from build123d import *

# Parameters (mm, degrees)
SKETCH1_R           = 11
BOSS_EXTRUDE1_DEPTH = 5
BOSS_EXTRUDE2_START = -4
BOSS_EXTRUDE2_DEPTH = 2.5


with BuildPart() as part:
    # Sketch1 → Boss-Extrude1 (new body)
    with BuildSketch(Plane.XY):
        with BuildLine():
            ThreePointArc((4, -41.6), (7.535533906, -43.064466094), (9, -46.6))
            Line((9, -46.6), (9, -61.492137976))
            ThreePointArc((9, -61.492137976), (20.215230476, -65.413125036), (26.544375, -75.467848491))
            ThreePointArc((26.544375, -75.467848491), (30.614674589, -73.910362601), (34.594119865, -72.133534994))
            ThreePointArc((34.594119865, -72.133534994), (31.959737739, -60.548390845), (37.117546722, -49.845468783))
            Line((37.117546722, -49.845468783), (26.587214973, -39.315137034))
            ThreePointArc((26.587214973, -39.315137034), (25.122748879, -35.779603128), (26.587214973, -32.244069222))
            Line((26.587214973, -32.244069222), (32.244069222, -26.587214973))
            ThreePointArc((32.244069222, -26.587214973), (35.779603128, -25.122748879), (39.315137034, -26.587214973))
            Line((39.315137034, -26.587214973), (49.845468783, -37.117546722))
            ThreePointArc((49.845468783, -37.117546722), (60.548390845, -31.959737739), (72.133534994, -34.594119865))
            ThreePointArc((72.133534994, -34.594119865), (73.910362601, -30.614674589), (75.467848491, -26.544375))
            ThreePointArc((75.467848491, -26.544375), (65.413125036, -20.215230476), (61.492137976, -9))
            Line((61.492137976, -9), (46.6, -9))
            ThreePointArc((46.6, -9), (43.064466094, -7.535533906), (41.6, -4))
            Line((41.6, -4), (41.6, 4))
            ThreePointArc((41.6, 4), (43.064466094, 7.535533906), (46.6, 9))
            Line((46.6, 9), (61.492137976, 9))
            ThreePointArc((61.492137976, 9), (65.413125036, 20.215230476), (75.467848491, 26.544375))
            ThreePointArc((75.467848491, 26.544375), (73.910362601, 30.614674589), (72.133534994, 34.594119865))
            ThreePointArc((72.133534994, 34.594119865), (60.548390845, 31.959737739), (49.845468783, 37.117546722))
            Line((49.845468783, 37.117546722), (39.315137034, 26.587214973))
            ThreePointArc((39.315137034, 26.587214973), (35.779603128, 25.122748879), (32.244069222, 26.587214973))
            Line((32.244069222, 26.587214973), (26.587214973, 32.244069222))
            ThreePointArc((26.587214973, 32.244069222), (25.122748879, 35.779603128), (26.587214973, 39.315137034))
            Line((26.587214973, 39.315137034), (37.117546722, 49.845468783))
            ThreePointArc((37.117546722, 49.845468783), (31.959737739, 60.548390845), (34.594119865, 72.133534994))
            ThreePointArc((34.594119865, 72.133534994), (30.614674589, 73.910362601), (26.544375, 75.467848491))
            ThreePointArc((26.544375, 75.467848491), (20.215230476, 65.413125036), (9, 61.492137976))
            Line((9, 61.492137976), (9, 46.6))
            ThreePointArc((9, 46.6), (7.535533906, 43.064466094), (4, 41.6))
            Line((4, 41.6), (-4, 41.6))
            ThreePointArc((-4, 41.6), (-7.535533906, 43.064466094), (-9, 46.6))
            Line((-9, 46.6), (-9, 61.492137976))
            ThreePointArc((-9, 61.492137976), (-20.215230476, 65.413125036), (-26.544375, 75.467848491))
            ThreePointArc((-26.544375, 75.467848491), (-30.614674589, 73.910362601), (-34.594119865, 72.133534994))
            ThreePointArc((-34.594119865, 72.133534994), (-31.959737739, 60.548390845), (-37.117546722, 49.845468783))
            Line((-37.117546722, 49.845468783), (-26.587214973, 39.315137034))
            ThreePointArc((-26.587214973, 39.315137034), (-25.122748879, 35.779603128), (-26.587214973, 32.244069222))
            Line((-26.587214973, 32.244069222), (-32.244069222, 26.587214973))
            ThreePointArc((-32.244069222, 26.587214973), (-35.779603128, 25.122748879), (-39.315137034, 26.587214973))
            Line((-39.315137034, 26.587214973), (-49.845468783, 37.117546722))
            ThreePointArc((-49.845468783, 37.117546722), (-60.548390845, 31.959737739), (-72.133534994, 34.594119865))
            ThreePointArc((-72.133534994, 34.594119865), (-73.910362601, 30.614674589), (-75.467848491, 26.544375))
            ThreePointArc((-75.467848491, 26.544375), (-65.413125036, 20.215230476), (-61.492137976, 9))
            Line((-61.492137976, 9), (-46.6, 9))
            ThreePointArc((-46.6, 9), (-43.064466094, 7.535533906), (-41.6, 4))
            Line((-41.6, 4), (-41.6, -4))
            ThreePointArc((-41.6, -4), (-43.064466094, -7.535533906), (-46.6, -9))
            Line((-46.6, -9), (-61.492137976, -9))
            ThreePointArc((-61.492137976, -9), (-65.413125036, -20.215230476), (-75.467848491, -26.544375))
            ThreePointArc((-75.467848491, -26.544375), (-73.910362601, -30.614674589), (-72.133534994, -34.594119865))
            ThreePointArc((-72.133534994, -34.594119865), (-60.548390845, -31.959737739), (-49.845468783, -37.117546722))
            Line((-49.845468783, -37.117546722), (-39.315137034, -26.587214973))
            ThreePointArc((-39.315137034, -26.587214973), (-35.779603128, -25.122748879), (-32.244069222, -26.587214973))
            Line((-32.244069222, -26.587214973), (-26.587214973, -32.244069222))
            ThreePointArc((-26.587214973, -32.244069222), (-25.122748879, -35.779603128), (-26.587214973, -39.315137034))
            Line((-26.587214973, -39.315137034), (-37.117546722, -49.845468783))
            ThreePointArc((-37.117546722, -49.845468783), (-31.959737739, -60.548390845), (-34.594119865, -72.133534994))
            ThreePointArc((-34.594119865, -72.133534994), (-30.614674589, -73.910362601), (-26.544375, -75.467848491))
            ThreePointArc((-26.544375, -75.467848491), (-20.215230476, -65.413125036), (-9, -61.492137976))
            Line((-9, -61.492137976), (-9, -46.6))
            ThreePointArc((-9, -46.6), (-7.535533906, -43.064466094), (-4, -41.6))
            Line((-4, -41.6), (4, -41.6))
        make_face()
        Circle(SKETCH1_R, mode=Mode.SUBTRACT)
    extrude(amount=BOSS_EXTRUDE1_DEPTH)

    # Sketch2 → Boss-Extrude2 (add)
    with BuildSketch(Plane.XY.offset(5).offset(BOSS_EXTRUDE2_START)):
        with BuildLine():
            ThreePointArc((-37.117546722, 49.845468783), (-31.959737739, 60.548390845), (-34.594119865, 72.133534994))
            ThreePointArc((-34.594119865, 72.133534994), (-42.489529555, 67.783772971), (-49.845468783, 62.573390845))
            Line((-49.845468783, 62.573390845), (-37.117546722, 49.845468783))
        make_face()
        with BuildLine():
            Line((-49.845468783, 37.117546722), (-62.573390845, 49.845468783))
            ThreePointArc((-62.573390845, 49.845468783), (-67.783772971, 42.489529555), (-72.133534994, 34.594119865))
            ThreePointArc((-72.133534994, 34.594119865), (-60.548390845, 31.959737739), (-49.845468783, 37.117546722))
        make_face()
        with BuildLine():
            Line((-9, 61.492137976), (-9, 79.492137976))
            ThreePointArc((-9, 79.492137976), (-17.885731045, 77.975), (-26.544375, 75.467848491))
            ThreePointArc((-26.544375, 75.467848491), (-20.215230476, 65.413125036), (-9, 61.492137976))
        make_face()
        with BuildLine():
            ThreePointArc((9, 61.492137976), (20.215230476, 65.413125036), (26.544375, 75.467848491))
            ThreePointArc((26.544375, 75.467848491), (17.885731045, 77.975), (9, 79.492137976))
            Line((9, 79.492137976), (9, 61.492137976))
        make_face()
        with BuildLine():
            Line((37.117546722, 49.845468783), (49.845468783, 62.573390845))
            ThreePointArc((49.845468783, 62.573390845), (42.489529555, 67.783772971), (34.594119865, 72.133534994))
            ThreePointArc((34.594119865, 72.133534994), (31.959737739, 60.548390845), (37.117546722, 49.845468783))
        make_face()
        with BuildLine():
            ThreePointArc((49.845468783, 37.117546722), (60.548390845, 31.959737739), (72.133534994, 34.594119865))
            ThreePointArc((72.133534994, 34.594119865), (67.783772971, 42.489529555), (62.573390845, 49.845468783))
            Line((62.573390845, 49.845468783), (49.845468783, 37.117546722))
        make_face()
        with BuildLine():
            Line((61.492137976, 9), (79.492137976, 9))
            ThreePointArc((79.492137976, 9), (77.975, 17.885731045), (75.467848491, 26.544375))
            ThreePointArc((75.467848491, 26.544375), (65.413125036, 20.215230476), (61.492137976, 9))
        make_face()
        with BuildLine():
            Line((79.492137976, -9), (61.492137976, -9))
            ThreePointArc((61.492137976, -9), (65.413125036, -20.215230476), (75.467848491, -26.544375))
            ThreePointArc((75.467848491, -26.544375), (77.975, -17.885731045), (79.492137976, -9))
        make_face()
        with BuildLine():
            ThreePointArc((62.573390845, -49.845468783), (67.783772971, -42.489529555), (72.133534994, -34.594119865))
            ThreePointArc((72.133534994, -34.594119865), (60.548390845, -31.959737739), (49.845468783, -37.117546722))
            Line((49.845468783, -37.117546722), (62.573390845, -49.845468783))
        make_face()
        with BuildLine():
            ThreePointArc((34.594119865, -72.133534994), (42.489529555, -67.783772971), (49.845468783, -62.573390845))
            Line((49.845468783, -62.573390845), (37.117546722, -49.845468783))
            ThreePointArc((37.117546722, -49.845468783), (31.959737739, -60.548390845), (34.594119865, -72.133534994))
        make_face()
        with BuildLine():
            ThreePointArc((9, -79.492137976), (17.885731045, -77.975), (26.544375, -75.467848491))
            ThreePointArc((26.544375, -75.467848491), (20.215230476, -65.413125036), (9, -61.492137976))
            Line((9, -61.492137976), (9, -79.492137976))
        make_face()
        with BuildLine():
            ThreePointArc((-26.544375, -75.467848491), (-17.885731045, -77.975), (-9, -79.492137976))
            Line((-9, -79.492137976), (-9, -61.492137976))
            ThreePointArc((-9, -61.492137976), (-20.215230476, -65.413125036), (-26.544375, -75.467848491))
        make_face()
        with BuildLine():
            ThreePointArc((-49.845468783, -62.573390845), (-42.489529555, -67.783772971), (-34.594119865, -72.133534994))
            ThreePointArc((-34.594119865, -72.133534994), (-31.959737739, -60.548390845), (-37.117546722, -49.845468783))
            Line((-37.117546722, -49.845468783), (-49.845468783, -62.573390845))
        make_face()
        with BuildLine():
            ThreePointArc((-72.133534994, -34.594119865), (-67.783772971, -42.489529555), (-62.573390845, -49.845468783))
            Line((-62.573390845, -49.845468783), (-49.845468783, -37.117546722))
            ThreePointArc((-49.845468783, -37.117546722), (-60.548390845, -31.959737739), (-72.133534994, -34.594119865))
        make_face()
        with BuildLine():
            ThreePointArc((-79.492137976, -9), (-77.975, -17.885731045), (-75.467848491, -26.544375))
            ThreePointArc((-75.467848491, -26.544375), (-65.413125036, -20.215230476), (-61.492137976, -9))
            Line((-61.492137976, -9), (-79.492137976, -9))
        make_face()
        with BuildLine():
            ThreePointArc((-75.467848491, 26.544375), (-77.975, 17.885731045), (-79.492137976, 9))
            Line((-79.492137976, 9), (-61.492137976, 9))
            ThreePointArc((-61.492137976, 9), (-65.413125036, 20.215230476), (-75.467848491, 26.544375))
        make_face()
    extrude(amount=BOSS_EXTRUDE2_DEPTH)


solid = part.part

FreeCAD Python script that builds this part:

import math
import FreeCAD as App
import Part
import Sketcher

V = App.Vector
Q = App.Units.Quantity

doc = App.newDocument("Part")
body = doc.addObject("PartDesign::Body", "Body")

# Sketch on XY plane
sketch1 = body.newObject("Sketcher::SketchObject", "Sketch")
sketch1.AttachmentSupport = (doc.getObject("XY_Plane"), [""])
sketch1.MapMode = "FlatFace"
sketch1.addGeometry([
    Part.ArcOfCircle(Part.Circle(V(4, -46.6, 0), V(0, 0, 1), 5), math.radians(0), math.radians(90)),  # 0
    Part.LineSegment(V(9, -46.6, 0), V(9, -61.492138, 0)),  # 1
    Part.ArcOfCircle(Part.Circle(V(9, -79.492138, 0), V(0, 0, 1), 18), math.radians(12.9189), math.radians(90)),  # 2
    Part.ArcOfCircle(Part.Circle(V(0, 0, 0), V(0, 0, 1), 80), math.radians(-70.621651), math.radians(-64.378349)),  # 3
    Part.ArcOfCircle(Part.Circle(V(49.845469, -62.573391, 0), V(0, 0, 1), 18), math.radians(135), math.radians(212.0811)),  # 4
    Part.LineSegment(V(37.117547, -49.845469, 0), V(26.587215, -39.315137, 0)),  # 5
    Part.ArcOfCircle(Part.Circle(V(30.122749, -35.779603, 0), V(0, 0, 1), 5), math.radians(135), math.radians(225)),  # 6
    Part.LineSegment(V(26.587215, -32.244069, 0), V(32.244069, -26.587215, 0)),  # 7
    Part.ArcOfCircle(Part.Circle(V(35.779603, -30.122749, 0), V(0, 0, 1), 5), math.radians(45), math.radians(135)),  # 8
    Part.LineSegment(V(39.315137, -26.587215, 0), V(49.845469, -37.117547, 0)),  # 9
    Part.ArcOfCircle(Part.Circle(V(62.573391, -49.845469, 0), V(0, 0, 1), 18), math.radians(57.9189), math.radians(135)),  # 10
    Part.ArcOfCircle(Part.Circle(V(0, 0, 0), V(0, 0, 1), 80), math.radians(-25.621651), math.radians(-19.378349)),  # 11
    Part.ArcOfCircle(Part.Circle(V(79.492138, -9, 0), V(0, 0, 1), 18), math.radians(180), math.radians(257.0811)),  # 12
    Part.LineSegment(V(61.492138, -9, 0), V(46.6, -9, 0)),  # 13
    Part.ArcOfCircle(Part.Circle(V(46.6, -4, 0), V(0, 0, 1), 5), math.radians(180), math.radians(270)),  # 14
    Part.LineSegment(V(41.6, -4, 0), V(41.6, 4, 0)),  # 15
    Part.ArcOfCircle(Part.Circle(V(46.6, 4, 0), V(0, 0, 1), 5), math.radians(90), math.radians(180)),  # 16
    Part.LineSegment(V(46.6, 9, 0), V(61.492138, 9, 0)),  # 17
    Part.ArcOfCircle(Part.Circle(V(79.492138, 9, 0), V(0, 0, 1), 18), math.radians(102.9189), math.radians(180)),  # 18
    Part.ArcOfCircle(Part.Circle(V(0, 0, 0), V(0, 0, 1), 80), math.radians(19.378349), math.radians(25.621651)),  # 19
    Part.ArcOfCircle(Part.Circle(V(62.573391, 49.845469, 0), V(0, 0, 1), 18), math.radians(-135), math.radians(-57.9189)),  # 20
    Part.LineSegment(V(49.845469, 37.117547, 0), V(39.315137, 26.587215, 0)),  # 21
    Part.ArcOfCircle(Part.Circle(V(35.779603, 30.122749, 0), V(0, 0, 1), 5), math.radians(-135), math.radians(-45)),  # 22
    Part.LineSegment(V(32.244069, 26.587215, 0), V(26.587215, 32.244069, 0)),  # 23
    Part.ArcOfCircle(Part.Circle(V(30.122749, 35.779603, 0), V(0, 0, 1), 5), math.radians(135), math.radians(225)),  # 24
    Part.LineSegment(V(26.587215, 39.315137, 0), V(37.117547, 49.845469, 0)),  # 25
    Part.ArcOfCircle(Part.Circle(V(49.845469, 62.573391, 0), V(0, 0, 1), 18), math.radians(147.9189), math.radians(225)),  # 26
    Part.ArcOfCircle(Part.Circle(V(0, 0, 0), V(0, 0, 1), 80), math.radians(64.378349), math.radians(70.621651)),  # 27
    Part.ArcOfCircle(Part.Circle(V(9, 79.492138, 0), V(0, 0, 1), 18), math.radians(-90), math.radians(-12.9189)),  # 28
    Part.LineSegment(V(9, 61.492138, 0), V(9, 46.6, 0)),  # 29
    Part.ArcOfCircle(Part.Circle(V(4, 46.6, 0), V(0, 0, 1), 5), math.radians(-90), math.radians(0)),  # 30
    Part.LineSegment(V(4, 41.6, 0), V(-4, 41.6, 0)),  # 31
    Part.ArcOfCircle(Part.Circle(V(-4, 46.6, 0), V(0, 0, 1), 5), math.radians(180), math.radians(270)),  # 32
    Part.LineSegment(V(-9, 46.6, 0), V(-9, 61.492138, 0)),  # 33
    Part.ArcOfCircle(Part.Circle(V(-9, 79.492138, 0), V(0, 0, 1), 18), math.radians(-167.0811), math.radians(-90)),  # 34
    Part.ArcOfCircle(Part.Circle(V(0, 0, 0), V(0, 0, 1), 80), math.radians(109.378349), math.radians(115.621651)),  # 35
    Part.ArcOfCircle(Part.Circle(V(-49.845469, 62.573391, 0), V(0, 0, 1), 18), math.radians(-45), math.radians(32.0811)),  # 36
    Part.LineSegment(V(-37.117547, 49.845469, 0), V(-26.587215, 39.315137, 0)),  # 37
    Part.ArcOfCircle(Part.Circle(V(-30.122749, 35.779603, 0), V(0, 0, 1), 5), math.radians(-45), math.radians(45)),  # 38
    Part.LineSegment(V(-26.587215, 32.244069, 0), V(-32.244069, 26.587215, 0)),  # 39
    Part.ArcOfCircle(Part.Circle(V(-35.779603, 30.122749, 0), V(0, 0, 1), 5), math.radians(-135), math.radians(-45)),  # 40
    Part.LineSegment(V(-39.315137, 26.587215, 0), V(-49.845469, 37.117547, 0)),  # 41
    Part.ArcOfCircle(Part.Circle(V(-62.573391, 49.845469, 0), V(0, 0, 1), 18), math.radians(-122.0811), math.radians(-45)),  # 42
    Part.ArcOfCircle(Part.Circle(V(0, 0, 0), V(0, 0, 1), 80), math.radians(154.378349), math.radians(160.621651)),  # 43
    Part.ArcOfCircle(Part.Circle(V(-79.492138, 9, 0), V(0, 0, 1), 18), math.radians(0), math.radians(77.0811)),  # 44
    Part.LineSegment(V(-61.492138, 9, 0), V(-46.6, 9, 0)),  # 45
    Part.ArcOfCircle(Part.Circle(V(-46.6, 4, 0), V(0, 0, 1), 5), math.radians(0), math.radians(90)),  # 46
    Part.LineSegment(V(-41.6, 4, 0), V(-41.6, -4, 0)),  # 47
    Part.ArcOfCircle(Part.Circle(V(-46.6, -4, 0), V(0, 0, 1), 5), math.radians(-90), math.radians(0)),  # 48
    Part.LineSegment(V(-46.6, -9, 0), V(-61.492138, -9, 0)),  # 49
    Part.ArcOfCircle(Part.Circle(V(-79.492138, -9, 0), V(0, 0, 1), 18), math.radians(-77.0811), math.radians(0)),  # 50
    Part.ArcOfCircle(Part.Circle(V(0, 0, 0), V(0, 0, 1), 80), math.radians(-160.621651), math.radians(-154.378349)),  # 51
    Part.ArcOfCircle(Part.Circle(V(-62.573391, -49.845469, 0), V(0, 0, 1), 18), math.radians(45), math.radians(122.0811)),  # 52
    Part.LineSegment(V(-49.845469, -37.117547, 0), V(-39.315137, -26.587215, 0)),  # 53
    Part.ArcOfCircle(Part.Circle(V(-35.779603, -30.122749, 0), V(0, 0, 1), 5), math.radians(45), math.radians(135)),  # 54
    Part.LineSegment(V(-32.244069, -26.587215, 0), V(-26.587215, -32.244069, 0)),  # 55
    Part.ArcOfCircle(Part.Circle(V(-30.122749, -35.779603, 0), V(0, 0, 1), 5), math.radians(-45), math.radians(45)),  # 56
    Part.LineSegment(V(-26.587215, -39.315137, 0), V(-37.117547, -49.845469, 0)),  # 57
    Part.ArcOfCircle(Part.Circle(V(-49.845469, -62.573391, 0), V(0, 0, 1), 18), math.radians(-32.0811), math.radians(45)),  # 58
    Part.ArcOfCircle(Part.Circle(V(0, 0, 0), V(0, 0, 1), 80), math.radians(-115.621651), math.radians(-109.378349)),  # 59
    Part.ArcOfCircle(Part.Circle(V(-9, -79.492138, 0), V(0, 0, 1), 18), math.radians(90), math.radians(167.0811)),  # 60
    Part.LineSegment(V(-9, -61.492138, 0), V(-9, -46.6, 0)),  # 61
    Part.ArcOfCircle(Part.Circle(V(-4, -46.6, 0), V(0, 0, 1), 5), math.radians(90), math.radians(180)),  # 62
    Part.LineSegment(V(-4, -41.6, 0), V(4, -41.6, 0)),  # 63
    Part.Circle(V(0, 0, 0), V(0, 0, 1), 11),  # 64
], False)
sketch1.addConstraint([
    Sketcher.Constraint("Tangent", 0, 1, 1, 1),
    Sketcher.Constraint("Coincident", 1, 2, 2, 2),
    Sketcher.Constraint("Coincident", 2, 1, 3, 1),
    Sketcher.Constraint("Coincident", 3, 2, 4, 2),
    Sketcher.Constraint("Coincident", 4, 1, 5, 1),
    Sketcher.Constraint("Tangent", 5, 2, 6, 2),
    Sketcher.Constraint("Tangent", 6, 1, 7, 1),
    Sketcher.Constraint("Tangent", 7, 2, 8, 2),
    Sketcher.Constraint("Tangent", 8, 1, 9, 1),
    Sketcher.Constraint("Coincident", 9, 2, 10, 2),
    Sketcher.Constraint("Coincident", 10, 1, 11, 1),
    Sketcher.Constraint("Coincident", 11, 2, 12, 2),
    Sketcher.Constraint("Coincident", 12, 1, 13, 1),
    Sketcher.Constraint("Tangent", 13, 2, 14, 2),
    Sketcher.Constraint("Tangent", 14, 1, 15, 1),
    Sketcher.Constraint("Tangent", 15, 2, 16, 2),
    Sketcher.Constraint("Tangent", 16, 1, 17, 1),
    Sketcher.Constraint("Coincident", 17, 2, 18, 2),
    Sketcher.Constraint("Coincident", 18, 1, 19, 1),
    Sketcher.Constraint("Coincident", 19, 2, 20, 2),
    Sketcher.Constraint("Coincident", 20, 1, 21, 1),
    Sketcher.Constraint("Tangent", 21, 2, 22, 2),
    Sketcher.Constraint("Tangent", 22, 1, 23, 1),
    Sketcher.Constraint("Tangent", 23, 2, 24, 2),
    Sketcher.Constraint("Tangent", 24, 1, 25, 1),
    Sketcher.Constraint("Coincident", 25, 2, 26, 2),
    Sketcher.Constraint("Coincident", 26, 1, 27, 1),
    Sketcher.Constraint("Coincident", 27, 2, 28, 2),
    Sketcher.Constraint("Coincident", 28, 1, 29, 1),
    Sketcher.Constraint("Tangent", 29, 2, 30, 2),
    Sketcher.Constraint("Tangent", 30, 1, 31, 1),
    Sketcher.Constraint("Tangent", 31, 2, 32, 2),
    Sketcher.Constraint("Tangent", 32, 1, 33, 1),
    Sketcher.Constraint("Coincident", 33, 2, 34, 2),
    Sketcher.Constraint("Coincident", 34, 1, 35, 1),
    Sketcher.Constraint("Coincident", 35, 2, 36, 2),
    Sketcher.Constraint("Coincident", 36, 1, 37, 1),
    Sketcher.Constraint("Tangent", 37, 2, 38, 2),
    Sketcher.Constraint("Tangent", 38, 1, 39, 1),
    Sketcher.Constraint("Tangent", 39, 2, 40, 2),
    Sketcher.Constraint("Tangent", 40, 1, 41, 1),
    Sketcher.Constraint("Coincident", 41, 2, 42, 2),
    Sketcher.Constraint("Coincident", 42, 1, 43, 1),
    Sketcher.Constraint("Coincident", 43, 2, 44, 2),
    Sketcher.Constraint("Coincident", 44, 1, 45, 1),
    Sketcher.Constraint("Tangent", 45, 2, 46, 2),
    Sketcher.Constraint("Tangent", 46, 1, 47, 1),
    Sketcher.Constraint("Tangent", 47, 2, 48, 2),
    Sketcher.Constraint("Tangent", 48, 1, 49, 1),
    Sketcher.Constraint("Coincident", 49, 2, 50, 2),
    Sketcher.Constraint("Coincident", 50, 1, 51, 1),
    Sketcher.Constraint("Coincident", 51, 2, 52, 2),
    Sketcher.Constraint("Coincident", 52, 1, 53, 1),
    Sketcher.Constraint("Tangent", 53, 2, 54, 2),
    Sketcher.Constraint("Tangent", 54, 1, 55, 1),
    Sketcher.Constraint("Tangent", 55, 2, 56, 2),
    Sketcher.Constraint("Tangent", 56, 1, 57, 1),
    Sketcher.Constraint("Coincident", 57, 2, 58, 2),
    Sketcher.Constraint("Coincident", 58, 1, 59, 1),
    Sketcher.Constraint("Coincident", 59, 2, 60, 2),
    Sketcher.Constraint("Coincident", 60, 1, 61, 1),
    Sketcher.Constraint("Tangent", 61, 2, 62, 2),
    Sketcher.Constraint("Tangent", 62, 1, 63, 1),
    Sketcher.Constraint("Tangent", 63, 2, 0, 2),
    Sketcher.Constraint("Vertical", 1),
    Sketcher.Constraint("Horizontal", 13),
    Sketcher.Constraint("Vertical", 15),
    Sketcher.Constraint("Horizontal", 17),
    Sketcher.Constraint("Vertical", 29),
    Sketcher.Constraint("Horizontal", 31),
    Sketcher.Constraint("Vertical", 33),
    Sketcher.Constraint("Horizontal", 45),
    Sketcher.Constraint("Vertical", 47),
    Sketcher.Constraint("Horizontal", 49),
    Sketcher.Constraint("Vertical", 61),
    Sketcher.Constraint("Horizontal", 63),
    Sketcher.Constraint("Coincident", 3, 3, -1, 1),
    Sketcher.Constraint("Coincident", 11, 3, -1, 1),
    Sketcher.Constraint("Coincident", 19, 3, -1, 1),
    Sketcher.Constraint("Coincident", 27, 3, -1, 1),
    Sketcher.Constraint("Coincident", 35, 3, -1, 1),
    Sketcher.Constraint("Coincident", 43, 3, -1, 1),
    Sketcher.Constraint("Coincident", 51, 3, -1, 1),
    Sketcher.Constraint("Coincident", 59, 3, -1, 1),
    Sketcher.Constraint("Coincident", 64, 3, -1, 1),
    Sketcher.Constraint("Equal", 2, 4),
    Sketcher.Constraint("Equal", 0, 6),
    Sketcher.Constraint("Equal", 6, 8),
    Sketcher.Constraint("Equal", 4, 10),
    Sketcher.Constraint("Equal", 3, 11),
    Sketcher.Constraint("Equal", 10, 12),
    Sketcher.Constraint("Equal", 8, 14),
    Sketcher.Constraint("Equal", 14, 16),
    Sketcher.Constraint("Equal", 12, 18),
    Sketcher.Constraint("Equal", 11, 19),
    Sketcher.Constraint("Equal", 18, 20),
    Sketcher.Constraint("Equal", 16, 22),
    Sketcher.Constraint("Equal", 22, 24),
    Sketcher.Constraint("Equal", 20, 26),
    Sketcher.Constraint("Equal", 19, 27),
    Sketcher.Constraint("Equal", 26, 28),
    Sketcher.Constraint("Equal", 24, 30),
    Sketcher.Constraint("Equal", 30, 32),
    Sketcher.Constraint("Equal", 28, 34),
    Sketcher.Constraint("Equal", 27, 35),
    Sketcher.Constraint("Equal", 34, 36),
    Sketcher.Constraint("Equal", 32, 38),
    Sketcher.Constraint("Equal", 38, 40),
    Sketcher.Constraint("Equal", 36, 42),
    Sketcher.Constraint("Equal", 35, 43),
    Sketcher.Constraint("Equal", 42, 44),
    Sketcher.Constraint("Equal", 40, 46),
    Sketcher.Constraint("Equal", 46, 48),
    Sketcher.Constraint("Equal", 44, 50),
    Sketcher.Constraint("Equal", 43, 51),
    Sketcher.Constraint("Equal", 50, 52),
    Sketcher.Constraint("Equal", 48, 54),
    Sketcher.Constraint("Equal", 54, 56),
    Sketcher.Constraint("Equal", 52, 58),
    Sketcher.Constraint("Equal", 51, 59),
    Sketcher.Constraint("Equal", 58, 60),
    Sketcher.Constraint("Equal", 56, 62),
    Sketcher.Constraint("Symmetric", 0, 3, 32, 3, -1, 1),
    Sketcher.Constraint("Symmetric", 2, 3, 34, 3, -1, 1),
    Sketcher.Constraint("Symmetric", 4, 3, 36, 3, -1, 1),
    Sketcher.Constraint("Symmetric", 6, 3, 38, 3, -1, 1),
    Sketcher.Constraint("Symmetric", 8, 3, 40, 3, -1, 1),
    Sketcher.Constraint("Symmetric", 10, 3, 42, 3, -1, 1),
    Sketcher.Constraint("Symmetric", 12, 3, 44, 3, -1, 1),
    Sketcher.Constraint("Symmetric", 14, 3, 46, 3, -1, 1),
    Sketcher.Constraint("Symmetric", 18, 3, 50, 3, -1, 1),
    Sketcher.Constraint("Symmetric", 20, 3, 52, 3, -1, 1),
    Sketcher.Constraint("Symmetric", 22, 3, 54, 3, -1, 1),
    Sketcher.Constraint("Symmetric", 24, 3, 56, 3, -1, 1),
    Sketcher.Constraint("Symmetric", 26, 3, 58, 3, -1, 1),
    Sketcher.Constraint("Symmetric", 28, 3, 60, 3, -1, 1),
    Sketcher.Constraint("Symmetric", 28, 3, 34, 3, -2),
    Sketcher.Constraint("Symmetric", 26, 3, 36, 3, -2),
    Sketcher.Constraint("Symmetric", 24, 3, 38, 3, -2),
    Sketcher.Constraint("Symmetric", 22, 3, 40, 3, -2),
    Sketcher.Constraint("Symmetric", 20, 3, 42, 3, -2),
    Sketcher.Constraint("Symmetric", 18, 3, 44, 3, -2),
    Sketcher.Constraint("Perpendicular", 5, 7),
    Sketcher.Constraint("Perpendicular", 7, 9),
    Sketcher.Constraint("Perpendicular", 9, 21),
    Sketcher.Constraint("Perpendicular", 21, 23),
    Sketcher.Constraint("Perpendicular", 23, 25),
    Sketcher.Constraint("Perpendicular", 25, 37),
    Sketcher.Constraint("Perpendicular", 39, 41),
    Sketcher.Constraint("Perpendicular", 41, 53),
    Sketcher.Constraint("Perpendicular", 55, 57),
    Sketcher.Constraint("Horizontal", 16, 3, 46, 3),
    Sketcher.Constraint("Horizontal", 14, 3, 48, 3),
    Sketcher.Constraint("Horizontal", 52, 3, 4, 1),
    Sketcher.Constraint("Horizontal", 50, 3, 12, 1),
    Sketcher.Constraint("Vertical", 0, 3, 30, 3),
    Sketcher.Constraint("Vertical", 32, 3, 62, 3),
    Sketcher.Constraint("Vertical", 28, 3, 0, 1),
    Sketcher.Constraint("Vertical", 26, 3, 9, 2),
    Sketcher.Constraint("Equal", 49, 1),
    Sketcher.Constraint("Equal", 63, 15),
    Sketcher.Constraint("Equal", 5, 9),
    Sketcher.Constraint("Diameter", 64, Q("22 mm")),
    Sketcher.Constraint("Radius", 0, Q("5 mm")),
    Sketcher.Constraint("Radius", 2, Q("18 mm")),
    Sketcher.Constraint("Radius", 3, Q("80 mm")),
    Sketcher.Constraint("DistanceX", 31, 2, 31, 1, Q("8 mm")),
    Sketcher.Constraint("Distance", 7, Q("8 mm")),
    Sketcher.Constraint("DistanceY", 0, 3, -1, 1, Q("46.6 mm")),
    Sketcher.Constraint("DistanceX", -1, 1, 14, 3, Q("46.6 mm")),
    Sketcher.Constraint("DistanceX", 13, 2, 13, 1, Q("14.892138 mm")),
    Sketcher.Constraint("DistanceX", -1, 1, 4, 3, Q("49.845469 mm")),
    Sketcher.Constraint("DistanceY", 4, 3, -1, 1, Q("62.573391 mm")),
    Sketcher.Constraint("DistanceX", -1, 1, 6, 3, Q("30.122749 mm")),
])
pad1 = body.newObject("PartDesign::Pad", "Pad")
pad1.Profile = sketch1
pad1.Length = 5

# Sketch on XY plane
sketch2 = body.newObject("Sketcher::SketchObject", "Sketch001")
sketch2.AttachmentSupport = (doc.getObject("XY_Plane"), [""])
sketch2.MapMode = "FlatFace"
sketch2.AttachmentOffset = App.Placement(V(0, 0, 1), App.Rotation())
sketch2.addGeometry([
    Part.ArcOfCircle(Part.Circle(V(-49.845469, 62.573391, 0), V(0, 0, 1), 18), math.radians(-45), math.radians(32.0811)),  # 0
    Part.ArcOfCircle(Part.Circle(V(0, 0, 0), V(0, 0, 1), 80), math.radians(115.621651), math.radians(128.54055)),  # 1
    Part.LineSegment(V(-49.845469, 62.573391, 0), V(-37.117547, 49.845469, 0)),  # 2
    Part.LineSegment(V(-49.845469, 37.117547, 0), V(-62.573391, 49.845469, 0)),  # 3
    Part.ArcOfCircle(Part.Circle(V(0, 0, 0), V(0, 0, 1), 80), math.radians(141.45945), math.radians(154.378349)),  # 4
    Part.ArcOfCircle(Part.Circle(V(-62.573391, 49.845469, 0), V(0, 0, 1), 18), math.radians(-122.0811), math.radians(-45)),  # 5
    Part.LineSegment(V(-9, 61.492138, 0), V(-9, 79.492138, 0)),  # 6
    Part.ArcOfCircle(Part.Circle(V(0, 0, 0), V(0, 0, 1), 80), math.radians(96.45945), math.radians(109.378349)),  # 7
    Part.ArcOfCircle(Part.Circle(V(-9, 79.492138, 0), V(0, 0, 1), 18), math.radians(-167.0811), math.radians(-90)),  # 8
    Part.ArcOfCircle(Part.Circle(V(9, 79.492138, 0), V(0, 0, 1), 18), math.radians(-90), math.radians(-12.9189)),  # 9
    Part.ArcOfCircle(Part.Circle(V(0, 0, 0), V(0, 0, 1), 80), math.radians(70.621651), math.radians(83.54055)),  # 10
    Part.LineSegment(V(9, 79.492138, 0), V(9, 61.492138, 0)),  # 11
    Part.LineSegment(V(37.117547, 49.845469, 0), V(49.845469, 62.573391, 0)),  # 12
    Part.ArcOfCircle(Part.Circle(V(0, 0, 0), V(0, 0, 1), 80), math.radians(51.45945), math.radians(64.378349)),  # 13
    Part.ArcOfCircle(Part.Circle(V(49.845469, 62.573391, 0), V(0, 0, 1), 18), math.radians(147.9189), math.radians(225)),  # 14
    Part.ArcOfCircle(Part.Circle(V(62.573391, 49.845469, 0), V(0, 0, 1), 18), math.radians(-135), math.radians(-57.9189)),  # 15
    Part.ArcOfCircle(Part.Circle(V(0, 0, 0), V(0, 0, 1), 80), math.radians(25.621651), math.radians(38.54055)),  # 16
    Part.LineSegment(V(62.573391, 49.845469, 0), V(49.845469, 37.117547, 0)),  # 17
    Part.LineSegment(V(61.492138, 9, 0), V(79.492138, 9, 0)),  # 18
    Part.ArcOfCircle(Part.Circle(V(0, 0, 0), V(0, 0, 1), 80), math.radians(6.45945), math.radians(19.378349)),  # 19
    Part.ArcOfCircle(Part.Circle(V(79.492138, 9, 0), V(0, 0, 1), 18), math.radians(102.9189), math.radians(180)),  # 20
    Part.LineSegment(V(79.492138, -9, 0), V(61.492138, -9, 0)),  # 21
    Part.ArcOfCircle(Part.Circle(V(79.492138, -9, 0), V(0, 0, 1), 18), math.radians(180), math.radians(257.0811)),  # 22
    Part.ArcOfCircle(Part.Circle(V(0, 0, 0), V(0, 0, 1), 80), math.radians(-19.378349), math.radians(-6.45945)),  # 23
    Part.ArcOfCircle(Part.Circle(V(0, 0, 0), V(0, 0, 1), 80), math.radians(-38.54055), math.radians(-25.621651)),  # 24
    Part.ArcOfCircle(Part.Circle(V(62.573391, -49.845469, 0), V(0, 0, 1), 18), math.radians(57.9189), math.radians(135)),  # 25
    Part.LineSegment(V(49.845469, -37.117547, 0), V(62.573391, -49.845469, 0)),  # 26
    Part.ArcOfCircle(Part.Circle(V(0, 0, 0), V(0, 0, 1), 80), math.radians(-64.378349), math.radians(-51.45945)),  # 27
    Part.LineSegment(V(49.845469, -62.573391, 0), V(37.117547, -49.845469, 0)),  # 28
    Part.ArcOfCircle(Part.Circle(V(49.845469, -62.573391, 0), V(0, 0, 1), 18), math.radians(135), math.radians(212.0811)),  # 29
    Part.ArcOfCircle(Part.Circle(V(0, 0, 0), V(0, 0, 1), 80), math.radians(-83.54055), math.radians(-70.621651)),  # 30
    Part.ArcOfCircle(Part.Circle(V(9, -79.492138, 0), V(0, 0, 1), 18), math.radians(12.9189), math.radians(90)),  # 31
    Part.LineSegment(V(9, -61.492138, 0), V(9, -79.492138, 0)),  # 32
    Part.ArcOfCircle(Part.Circle(V(0, 0, 0), V(0, 0, 1), 80), math.radians(-109.378349), math.radians(-96.45945)),  # 33
    Part.LineSegment(V(-9, -79.492138, 0), V(-9, -61.492138, 0)),  # 34
    Part.ArcOfCircle(Part.Circle(V(-9, -79.492138, 0), V(0, 0, 1), 18), math.radians(90), math.radians(167.0811)),  # 35
    Part.ArcOfCircle(Part.Circle(V(0, 0, 0), V(0, 0, 1), 80), math.radians(-128.54055), math.radians(-115.621651)),  # 36
    Part.ArcOfCircle(Part.Circle(V(-49.845469, -62.573391, 0), V(0, 0, 1), 18), math.radians(-32.0811), math.radians(45)),  # 37
    Part.LineSegment(V(-37.117547, -49.845469, 0), V(-49.845469, -62.573391, 0)),  # 38
    Part.ArcOfCircle(Part.Circle(V(0, 0, 0), V(0, 0, 1), 80), math.radians(-154.378349), math.radians(-141.45945)),  # 39
    Part.LineSegment(V(-62.573391, -49.845469, 0), V(-49.845469, -37.117547, 0)),  # 40
    Part.ArcOfCircle(Part.Circle(V(-62.573391, -49.845469, 0), V(0, 0, 1), 18), math.radians(45), math.radians(122.0811)),  # 41
    Part.ArcOfCircle(Part.Circle(V(0, 0, 0), V(0, 0, 1), 80), math.radians(-173.54055), math.radians(-160.621651)),  # 42
    Part.ArcOfCircle(Part.Circle(V(-79.492138, -9, 0), V(0, 0, 1), 18), math.radians(-77.0811), math.radians(0)),  # 43
    Part.LineSegment(V(-61.492138, -9, 0), V(-79.492138, -9, 0)),  # 44
    Part.ArcOfCircle(Part.Circle(V(0, 0, 0), V(0, 0, 1), 80), math.radians(160.621651), math.radians(173.54055)),  # 45
    Part.LineSegment(V(-79.492138, 9, 0), V(-61.492138, 9, 0)),  # 46
    Part.ArcOfCircle(Part.Circle(V(-79.492138, 9, 0), V(0, 0, 1), 18), math.radians(0), math.radians(77.0811)),  # 47
], False)
sketch2.addConstraint([
    Sketcher.Constraint("Coincident", 0, 2, 1, 1),
    Sketcher.Constraint("Coincident", 1, 2, 2, 1),
    Sketcher.Constraint("Coincident", 2, 2, 0, 1),
    Sketcher.Constraint("Coincident", 3, 2, 4, 1),
    Sketcher.Constraint("Coincident", 4, 2, 5, 1),
    Sketcher.Constraint("Coincident", 5, 2, 3, 1),
    Sketcher.Constraint("Coincident", 6, 2, 7, 1),
    Sketcher.Constraint("Coincident", 7, 2, 8, 1),
    Sketcher.Constraint("Coincident", 8, 2, 6, 1),
    Sketcher.Constraint("Coincident", 9, 2, 10, 1),
    Sketcher.Constraint("Coincident", 10, 2, 11, 1),
    Sketcher.Constraint("Coincident", 11, 2, 9, 1),
    Sketcher.Constraint("Coincident", 12, 2, 13, 1),
    Sketcher.Constraint("Coincident", 13, 2, 14, 1),
    Sketcher.Constraint("Coincident", 14, 2, 12, 1),
    Sketcher.Constraint("Coincident", 15, 2, 16, 1),
    Sketcher.Constraint("Coincident", 16, 2, 17, 1),
    Sketcher.Constraint("Coincident", 17, 2, 15, 1),
    Sketcher.Constraint("Coincident", 18, 2, 19, 1),
    Sketcher.Constraint("Coincident", 19, 2, 20, 1),
    Sketcher.Constraint("Coincident", 20, 2, 18, 1),
    Sketcher.Constraint("Coincident", 21, 2, 22, 1),
    Sketcher.Constraint("Coincident", 22, 2, 23, 1),
    Sketcher.Constraint("Coincident", 23, 2, 21, 1),
    Sketcher.Constraint("Coincident", 24, 2, 25, 1),
    Sketcher.Constraint("Coincident", 25, 2, 26, 1),
    Sketcher.Constraint("Coincident", 26, 2, 24, 1),
    Sketcher.Constraint("Coincident", 27, 2, 28, 1),
    Sketcher.Constraint("Coincident", 28, 2, 29, 1),
    Sketcher.Constraint("Coincident", 29, 2, 27, 1),
    Sketcher.Constraint("Coincident", 30, 2, 31, 1),
    Sketcher.Constraint("Coincident", 31, 2, 32, 1),
    Sketcher.Constraint("Coincident", 32, 2, 30, 1),
    Sketcher.Constraint("Coincident", 33, 2, 34, 1),
    Sketcher.Constraint("Coincident", 34, 2, 35, 1),
    Sketcher.Constraint("Coincident", 35, 2, 33, 1),
    Sketcher.Constraint("Coincident", 36, 2, 37, 1),
    Sketcher.Constraint("Coincident", 37, 2, 38, 1),
    Sketcher.Constraint("Coincident", 38, 2, 36, 1),
    Sketcher.Constraint("Coincident", 39, 2, 40, 1),
    Sketcher.Constraint("Coincident", 40, 2, 41, 1),
    Sketcher.Constraint("Coincident", 41, 2, 39, 1),
    Sketcher.Constraint("Coincident", 42, 2, 43, 1),
    Sketcher.Constraint("Coincident", 43, 2, 44, 1),
    Sketcher.Constraint("Coincident", 44, 2, 42, 1),
    Sketcher.Constraint("Coincident", 45, 2, 46, 1),
    Sketcher.Constraint("Coincident", 46, 2, 47, 1),
    Sketcher.Constraint("Coincident", 47, 2, 45, 1),
    Sketcher.Constraint("Vertical", 6),
    Sketcher.Constraint("Vertical", 11),
    Sketcher.Constraint("Horizontal", 18),
    Sketcher.Constraint("Horizontal", 21),
    Sketcher.Constraint("Vertical", 32),
    Sketcher.Constraint("Vertical", 34),
    Sketcher.Constraint("Horizontal", 44),
    Sketcher.Constraint("Horizontal", 46),
    Sketcher.Constraint("Coincident", 1, 3, -1, 1),
    Sketcher.Constraint("Coincident", 4, 3, -1, 1),
    Sketcher.Constraint("Coincident", 7, 3, -1, 1),
    Sketcher.Constraint("Coincident", 10, 3, -1, 1),
    Sketcher.Constraint("Coincident", 13, 3, -1, 1),
    Sketcher.Constraint("Coincident", 16, 3, -1, 1),
    Sketcher.Constraint("Coincident", 19, 3, -1, 1),
    Sketcher.Constraint("Coincident", 23, 3, -1, 1),
    Sketcher.Constraint("Coincident", 24, 3, -1, 1),
    Sketcher.Constraint("Coincident", 27, 3, -1, 1),
    Sketcher.Constraint("Coincident", 30, 3, -1, 1),
    Sketcher.Constraint("Coincident", 33, 3, -1, 1),
    Sketcher.Constraint("Coincident", 36, 3, -1, 1),
    Sketcher.Constraint("Coincident", 39, 3, -1, 1),
    Sketcher.Constraint("Coincident", 42, 3, -1, 1),
    Sketcher.Constraint("Coincident", 45, 3, -1, 1),
    Sketcher.Constraint("Coincident", 1, 2, 0, 3),
    Sketcher.Constraint("Coincident", 3, 2, 5, 3),
    Sketcher.Constraint("Coincident", 6, 2, 8, 3),
    Sketcher.Constraint("Coincident", 10, 2, 9, 3),
    Sketcher.Constraint("Coincident", 12, 2, 14, 3),
    Sketcher.Constraint("Coincident", 16, 2, 15, 3),
    Sketcher.Constraint("Coincident", 18, 2, 20, 3),
    Sketcher.Constraint("Coincident", 23, 2, 22, 3),
    Sketcher.Constraint("Coincident", 26, 2, 25, 3),
    Sketcher.Constraint("Coincident", 27, 2, 29, 3),
    Sketcher.Constraint("Coincident", 32, 2, 31, 3),
    Sketcher.Constraint("Coincident", 33, 2, 35, 3),
    Sketcher.Constraint("Coincident", 38, 2, 37, 3),
    Sketcher.Constraint("Coincident", 39, 2, 41, 3),
    Sketcher.Constraint("Coincident", 44, 2, 43, 3),
    Sketcher.Constraint("Coincident", 45, 2, 47, 3),
    Sketcher.Constraint("Equal", 1, 4),
    Sketcher.Constraint("Equal", 0, 5),
    Sketcher.Constraint("Equal", 4, 7),
    Sketcher.Constraint("Equal", 5, 8),
    Sketcher.Constraint("Equal", 8, 9),
    Sketcher.Constraint("Equal", 7, 10),
    Sketcher.Constraint("Equal", 10, 13),
    Sketcher.Constraint("Equal", 9, 14),
    Sketcher.Constraint("Equal", 14, 15),
    Sketcher.Constraint("Equal", 13, 16),
    Sketcher.Constraint("Equal", 16, 19),
    Sketcher.Constraint("Equal", 15, 20),
    Sketcher.Constraint("Equal", 20, 22),
    Sketcher.Constraint("Equal", 19, 23),
    Sketcher.Constraint("Equal", 23, 24),
    Sketcher.Constraint("Equal", 22, 25),
    Sketcher.Constraint("Equal", 24, 27),
    Sketcher.Constraint("Equal", 25, 29),
    Sketcher.Constraint("Equal", 27, 30),
    Sketcher.Constraint("Equal", 29, 31),
    Sketcher.Constraint("Equal", 30, 33),
    Sketcher.Constraint("Equal", 31, 35),
    Sketcher.Constraint("Equal", 33, 36),
    Sketcher.Constraint("Equal", 35, 37),
    Sketcher.Constraint("Equal", 36, 39),
    Sketcher.Constraint("Equal", 37, 41),
    Sketcher.Constraint("Equal", 39, 42),
    Sketcher.Constraint("Equal", 41, 43),
    Sketcher.Constraint("Equal", 42, 45),
    Sketcher.Constraint("Equal", 43, 47),
    Sketcher.Constraint("Symmetric", 5, 2, 25, 2, -1, 1),
    Sketcher.Constraint("Symmetric", 2, 2, 28, 2, -1, 1),
    Sketcher.Constraint("Symmetric", 14, 2, 37, 2, -1, 1),
    Sketcher.Constraint("Symmetric", 17, 2, 40, 2, -1, 1),
    Sketcher.Constraint("Symmetric", 2, 2, 14, 2, -2),
    Sketcher.Constraint("Symmetric", 5, 2, 17, 2, -2),
    Sketcher.Constraint("Parallel", 2, 3),
    Sketcher.Constraint("Perpendicular", 3, 12),
    Sketcher.Constraint("Horizontal", 8, 3, 9, 3),
    Sketcher.Constraint("Horizontal", 31, 3, 35, 3),
    Sketcher.Constraint("Horizontal", 22, 3, 43, 3),
    Sketcher.Constraint("Horizontal", 20, 3, 47, 3),
    Sketcher.Constraint("Horizontal", 15, 3, 2, 2),
    Sketcher.Constraint("Vertical", 20, 3, 22, 3),
    Sketcher.Constraint("Vertical", 9, 3, 31, 3),
    Sketcher.Constraint("Vertical", 12, 2, 17, 2),
    Sketcher.Constraint("Radius", 0, Q("18 mm")),
    Sketcher.Constraint("Radius", 1, Q("80 mm")),
    Sketcher.Constraint("DistanceX", 8, 3, -1, 1, Q("9 mm")),
    Sketcher.Constraint("DistanceY", -1, 1, 20, 3, Q("9 mm")),
])
pad2 = body.newObject("PartDesign::Pad", "Pad001")
pad2.Profile = sketch2
pad2.Length = 2.5

doc.recompute()
